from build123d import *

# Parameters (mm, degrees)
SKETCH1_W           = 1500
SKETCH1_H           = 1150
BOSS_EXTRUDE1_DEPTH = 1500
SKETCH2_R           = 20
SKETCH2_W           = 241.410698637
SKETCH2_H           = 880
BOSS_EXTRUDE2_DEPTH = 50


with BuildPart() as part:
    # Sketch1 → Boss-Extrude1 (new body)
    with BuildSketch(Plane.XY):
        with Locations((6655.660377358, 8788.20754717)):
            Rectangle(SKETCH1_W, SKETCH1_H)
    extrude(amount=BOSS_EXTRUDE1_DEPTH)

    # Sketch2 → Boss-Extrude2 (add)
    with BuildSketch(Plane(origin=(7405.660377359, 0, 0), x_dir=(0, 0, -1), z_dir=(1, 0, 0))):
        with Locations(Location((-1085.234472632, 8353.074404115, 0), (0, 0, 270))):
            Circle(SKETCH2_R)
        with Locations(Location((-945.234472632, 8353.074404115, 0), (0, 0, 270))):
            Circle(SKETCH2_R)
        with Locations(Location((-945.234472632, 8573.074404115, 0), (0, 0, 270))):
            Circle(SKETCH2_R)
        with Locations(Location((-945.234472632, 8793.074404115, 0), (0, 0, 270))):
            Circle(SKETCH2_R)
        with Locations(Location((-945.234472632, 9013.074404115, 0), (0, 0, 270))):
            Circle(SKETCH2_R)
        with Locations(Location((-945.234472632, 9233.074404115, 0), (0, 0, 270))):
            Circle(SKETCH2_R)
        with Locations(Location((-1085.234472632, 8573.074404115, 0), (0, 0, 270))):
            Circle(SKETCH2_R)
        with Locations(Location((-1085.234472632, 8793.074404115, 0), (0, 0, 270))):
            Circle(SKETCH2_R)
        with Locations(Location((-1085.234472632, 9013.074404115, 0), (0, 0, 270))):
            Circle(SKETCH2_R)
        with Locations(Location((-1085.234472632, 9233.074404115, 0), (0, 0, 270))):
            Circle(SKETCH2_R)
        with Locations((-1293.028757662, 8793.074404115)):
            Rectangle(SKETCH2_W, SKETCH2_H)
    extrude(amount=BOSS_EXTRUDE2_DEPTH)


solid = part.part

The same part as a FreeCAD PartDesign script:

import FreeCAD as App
import Part
import Sketcher
from FreeCAD import Vector


def add_polygon(sketch, points):
    """Adds a closed chain of lines whose ends are joined by coincident constraints."""
    first, n = sketch.GeometryCount, len(points)
    for a, b in zip(points, points[1:] + points[:1]):
        sketch.addGeometry(Part.LineSegment(App.Vector(*a, 0), App.Vector(*b, 0)), False)
    for i in range(n):
        sketch.addConstraint(Sketcher.Constraint("Coincident", first + i, 2, first + (i + 1) % n, 1))

doc = App.newDocument("Part")
body = doc.addObject("PartDesign::Body", "Body")

# Sketch on XY plane
sketch1 = body.newObject("Sketcher::SketchObject", "Sketch")
sketch1.AttachmentSupport = (doc.getObject("XY_Plane"), [""])
sketch1.MapMode = "FlatFace"
add_polygon(sketch1, [(5906, 9363), (5906, 8213), (7406, 8213), (7406, 9363)])  # lines 0-3
sketch1.addConstraint([
    Sketcher.Constraint("Vertical", 0),
    Sketcher.Constraint("Horizontal", 1),
    Sketcher.Constraint("Vertical", 2),
    Sketcher.Constraint("Horizontal", 3),
    Sketcher.Constraint("DistanceX", 1, 1, 1, 2, 1500.0),
    Sketcher.Constraint("DistanceY", 0, 2, 0, 1, 1150.0),
    Sketcher.Constraint("DistanceX", -1, 1, 0, 2, 5905.660377),
    Sketcher.Constraint("DistanceY", -1, 1, 0, 2, 8213.207547),
])
pad1 = body.newObject("PartDesign::Pad", "Pad")
pad1.Profile = sketch1
pad1.Length = 1500

# Sketch on YZ plane
sketch2 = body.newObject("Sketcher::SketchObject", "Sketch001")
sketch2.AttachmentSupport = (doc.getObject("YZ_Plane"), [""])
sketch2.MapMode = "FlatFace"
sketch2.AttachmentOffset = App.Placement(Vector(0, 0, 7405.660377), App.Rotation())
sketch2.addGeometry(Part.Circle(Vector(8353, 1085, 0), Vector(0, 0, 1), 20), False)  # 0
sketch2.addGeometry(Part.Circle(Vector(8353, 945, 0), Vector(0, 0, 1), 20), False)  # 1
sketch2.addGeometry(Part.Circle(Vector(8573, 945, 0), Vector(0, 0, 1), 20), False)  # 2
sketch2.addGeometry(Part.Circle(Vector(8793, 945, 0), Vector(0, 0, 1), 20), False)  # 3
sketch2.addGeometry(Part.Circle(Vector(9013, 945, 0), Vector(0, 0, 1), 20), False)  # 4
sketch2.addGeometry(Part.Circle(Vector(9233, 945, 0), Vector(0, 0, 1), 20), False)  # 5
sketch2.addGeometry(Part.Circle(Vector(8573, 1085, 0), Vector(0, 0, 1), 20), False)  # 6
sketch2.addGeometry(Part.Circle(Vector(8793, 1085, 0), Vector(0, 0, 1), 20), False)  # 7
sketch2.addGeometry(Part.Circle(Vector(9013, 1085, 0), Vector(0, 0, 1), 20), False)  # 8
sketch2.addGeometry(Part.Circle(Vector(9233, 1085, 0), Vector(0, 0, 1), 20), False)  # 9
add_polygon(sketch2, [(9233, 1414), (8353, 1414), (8353, 1172), (9233, 1172)])  # lines 10-13
sketch2.addConstraint([
    Sketcher.Constraint("Horizontal", 10),
    Sketcher.Constraint("Vertical", 11),
    Sketcher.Constraint("Horizontal", 12),
    Sketcher.Constraint("Vertical", 13),
    Sketcher.Constraint("Equal", 0, 1),
    Sketcher.Constraint("Equal", 1, 2),
    Sketcher.Constraint("Equal", 2, 3),
    Sketcher.Constraint("Equal", 3, 4),
    Sketcher.Constraint("Equal", 4, 5),
    Sketcher.Constraint("Equal", 5, 6),
    Sketcher.Constraint("Equal", 6, 7),
    Sketcher.Constraint("Equal", 7, 8),
    Sketcher.Constraint("Equal", 8, 9),
    Sketcher.Constraint("Horizontal", 1, 3, 2, 3),
    Sketcher.Constraint("Horizontal", 2, 3, 3, 3),
    Sketcher.Constraint("Horizontal", 3, 3, 4, 3),
    Sketcher.Constraint("Horizontal", 4, 3, 5, 3),
    Sketcher.Constraint("Horizontal", 0, 3, 6, 3),
    Sketcher.Constraint("Horizontal", 6, 3, 7, 3),
    Sketcher.Constraint("Horizontal", 7, 3, 8, 3),
    Sketcher.Constraint("Horizontal", 8, 3, 9, 3),
    Sketcher.Constraint("Vertical", 0, 3, 1, 3),
    Sketcher.Constraint("Vertical", 2, 3, 6, 3),
    Sketcher.Constraint("Vertical", 3, 3, 7, 3),
    Sketcher.Constraint("Vertical", 4, 3, 8, 3),
    Sketcher.Constraint("Vertical", 5, 3, 9, 3),
    Sketcher.Constraint("Vertical", 1, 3, 10, 2),
    Sketcher.Constraint("Vertical", 9, 3, 12, 2),
    Sketcher.Constraint("Diameter", 0, 40.0),
    Sketcher.Constraint("DistanceX", 10, 2, 10, 1, 880.0),
    Sketcher.Constraint("DistanceY", 1, 3, 0, 3, 140.0),
    Sketcher.Constraint("DistanceX", 1, 3, 2, 3, 220.0),
    Sketcher.Constraint("DistanceX", 2, 3, 3, 3, 220.0),
    Sketcher.Constraint("DistanceX", 3, 3, 4, 3, 220.0),
    Sketcher.Constraint("DistanceY", 11, 2, 11, 1, 241.410699),
    Sketcher.Constraint("DistanceY", -1, 1, 11, 2, 1172.323408),
    Sketcher.Constraint("DistanceX", -1, 1, 0, 3, 8353.074404),
    Sketcher.Constraint("DistanceY", -1, 1, 0, 3, 1085.234473),
])
pad2 = body.newObject("PartDesign::Pad", "Pad001")
pad2.Profile = sketch2
pad2.Length = 50

doc.recompute()
